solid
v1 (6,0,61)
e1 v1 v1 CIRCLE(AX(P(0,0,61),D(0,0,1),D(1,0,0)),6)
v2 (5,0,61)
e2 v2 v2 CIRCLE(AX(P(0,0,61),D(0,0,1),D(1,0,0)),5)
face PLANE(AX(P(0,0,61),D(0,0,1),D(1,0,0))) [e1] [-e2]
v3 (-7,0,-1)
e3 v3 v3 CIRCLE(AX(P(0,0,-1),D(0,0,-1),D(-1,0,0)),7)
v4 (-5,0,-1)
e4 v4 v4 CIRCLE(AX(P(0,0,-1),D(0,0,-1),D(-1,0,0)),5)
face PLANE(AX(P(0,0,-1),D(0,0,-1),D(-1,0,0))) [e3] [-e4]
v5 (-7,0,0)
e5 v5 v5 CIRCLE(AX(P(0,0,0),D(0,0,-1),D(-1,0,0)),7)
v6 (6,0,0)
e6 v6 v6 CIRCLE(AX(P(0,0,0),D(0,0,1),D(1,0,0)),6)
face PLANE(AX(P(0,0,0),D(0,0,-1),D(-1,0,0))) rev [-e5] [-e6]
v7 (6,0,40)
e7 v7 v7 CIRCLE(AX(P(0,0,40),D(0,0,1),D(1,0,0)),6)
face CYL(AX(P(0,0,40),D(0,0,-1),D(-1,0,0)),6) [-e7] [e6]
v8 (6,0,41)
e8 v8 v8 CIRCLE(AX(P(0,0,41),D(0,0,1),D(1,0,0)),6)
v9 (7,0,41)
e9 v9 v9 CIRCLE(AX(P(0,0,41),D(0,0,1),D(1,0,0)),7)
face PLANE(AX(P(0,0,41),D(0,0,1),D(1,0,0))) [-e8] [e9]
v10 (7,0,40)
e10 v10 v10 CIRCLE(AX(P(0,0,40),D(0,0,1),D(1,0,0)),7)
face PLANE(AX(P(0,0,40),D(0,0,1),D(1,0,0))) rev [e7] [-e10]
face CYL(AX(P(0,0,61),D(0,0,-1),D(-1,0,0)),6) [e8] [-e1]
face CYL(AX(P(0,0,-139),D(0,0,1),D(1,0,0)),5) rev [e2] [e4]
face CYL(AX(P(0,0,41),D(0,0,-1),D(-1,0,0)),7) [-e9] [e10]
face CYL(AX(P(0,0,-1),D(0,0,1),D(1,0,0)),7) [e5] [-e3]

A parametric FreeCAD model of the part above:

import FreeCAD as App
import Part
import Sketcher
Q = App.Units.Quantity

doc = App.newDocument("Part")
params = doc.addObject("Spreadsheet::Sheet", "Params")
for row, (alias, value) in enumerate([
    ("sketch1_diameter", "12 mm"),
    ("pad1_length", "40 mm"),
    ("sketch2_diameter", "14 mm"),
    ("pad2_length", "1 mm"),
    ("sketch3_diameter", "14 mm"),
    ("pad3_length", "1 mm"),
    ("sketch4_diameter", "12 mm"),
    ("pad4_length", "20 mm"),
    ("sketch5_diameter", "10 mm"),
    ("pocket1_length", "200 mm"),
], start=1):
    params.set(f"A{row}", alias)
    params.set(f"B{row}", "=" + value)
    params.setAlias(f"B{row}", alias)

body = doc.addObject("PartDesign::Body", "Body")

# Sketch on XY plane
sketch1 = body.newObject("Sketcher::SketchObject", "Sketch")
sketch1.AttachmentSupport = (doc.getObject("XY_Plane"), [""])
sketch1.MapMode = "FlatFace"
sketch1.addGeometry(Part.Circle(App.Vector(0, 0, 0), App.Vector(0, 0, 1), 6), False)
sketch1.addConstraint(Sketcher.Constraint("Coincident", 0, 3, -1, 1))
sketch1.addConstraint(Sketcher.Constraint("Diameter", 0, Q("12 mm")))
sketch1.setExpression("Constraints[1]", "Params.sketch1_diameter")
pad1 = body.newObject("PartDesign::Pad", "Pad")
pad1.Profile = sketch1
pad1.setExpression("Length", "Params.pad1_length")

# Sketch on XY plane
sketch2 = body.newObject("Sketcher::SketchObject", "Sketch001")
sketch2.AttachmentSupport = (doc.getObject("XY_Plane"), [""])
sketch2.MapMode = "FlatFace"
sketch2.addGeometry(Part.Circle(App.Vector(0, 0, 0), App.Vector(0, 0, 1), 7), False)
sketch2.addConstraint(Sketcher.Constraint("Coincident", 0, 3, -1, 1))
sketch2.addConstraint(Sketcher.Constraint("Diameter", 0, Q("14 mm")))
sketch2.setExpression("Constraints[1]", "Params.sketch2_diameter")
pad2 = body.newObject("PartDesign::Pad", "Pad001")
pad2.Profile = sketch2
pad2.setExpression("Length", "Params.pad2_length")
pad2.Reversed = True

# Sketch on XY plane
sketch3 = body.newObject("Sketcher::SketchObject", "Sketch002")
sketch3.AttachmentSupport = (doc.getObject("XY_Plane"), [""])
sketch3.MapMode = "FlatFace"
sketch3.AttachmentOffset = App.Placement(App.Vector(0, 0, 41), App.Rotation())
sketch3.addGeometry(Part.Circle(App.Vector(0, 0, 0), App.Vector(0, 0, 1), 7), False)
sketch3.addConstraint(Sketcher.Constraint("Coincident", 0, 3, -1, 1))
sketch3.addConstraint(Sketcher.Constraint("Diameter", 0, Q("14 mm")))
sketch3.setExpression("Constraints[1]", "Params.sketch3_diameter")
pad3 = body.newObject("PartDesign::Pad", "Pad002")
pad3.Profile = sketch3
pad3.setExpression("Length", "Params.pad3_length")
pad3.Reversed = True

# Sketch on XY plane
sketch4 = body.newObject("Sketcher::SketchObject", "Sketch003")
sketch4.AttachmentSupport = (doc.getObject("XY_Plane"), [""])
sketch4.MapMode = "FlatFace"
sketch4.AttachmentOffset = App.Placement(App.Vector(0, 0, 41), App.Rotation())
sketch4.addGeometry(Part.Circle(App.Vector(0, 0, 0), App.Vector(0, 0, 1), 6), False)
sketch4.addConstraint(Sketcher.Constraint("Coincident", 0, 3, -1, 1))
sketch4.addConstraint(Sketcher.Constraint("Diameter", 0, Q("12 mm")))
sketch4.setExpression("Constraints[1]", "Params.sketch4_diameter")
pad4 = body.newObject("PartDesign::Pad", "Pad003")
pad4.Profile = sketch4
pad4.setExpression("Length", "Params.pad4_length")

# Sketch on XY plane
sketch5 = body.newObject("Sketcher::SketchObject", "Sketch004")
sketch5.AttachmentSupport = (doc.getObject("XY_Plane"), [""])
sketch5.MapMode = "FlatFace"
sketch5.AttachmentOffset = App.Placement(App.Vector(0, 0, 61), App.Rotation())
sketch5.addGeometry(Part.Circle(App.Vector(0, 0, 0), App.Vector(0, 0, 1), 5), False)
sketch5.addConstraint(Sketcher.Constraint("Coincident", 0, 3, -1, 1))
sketch5.addConstraint(Sketcher.Constraint("Diameter", 0, Q("10 mm")))
sketch5.setExpression("Constraints[1]", "Params.sketch5_diameter")
pocket1 = body.newObject("PartDesign::Pocket", "Pocket")
pocket1.Profile = sketch5
pocket1.setExpression("Length", "Params.pocket1_length")

doc.recompute()
